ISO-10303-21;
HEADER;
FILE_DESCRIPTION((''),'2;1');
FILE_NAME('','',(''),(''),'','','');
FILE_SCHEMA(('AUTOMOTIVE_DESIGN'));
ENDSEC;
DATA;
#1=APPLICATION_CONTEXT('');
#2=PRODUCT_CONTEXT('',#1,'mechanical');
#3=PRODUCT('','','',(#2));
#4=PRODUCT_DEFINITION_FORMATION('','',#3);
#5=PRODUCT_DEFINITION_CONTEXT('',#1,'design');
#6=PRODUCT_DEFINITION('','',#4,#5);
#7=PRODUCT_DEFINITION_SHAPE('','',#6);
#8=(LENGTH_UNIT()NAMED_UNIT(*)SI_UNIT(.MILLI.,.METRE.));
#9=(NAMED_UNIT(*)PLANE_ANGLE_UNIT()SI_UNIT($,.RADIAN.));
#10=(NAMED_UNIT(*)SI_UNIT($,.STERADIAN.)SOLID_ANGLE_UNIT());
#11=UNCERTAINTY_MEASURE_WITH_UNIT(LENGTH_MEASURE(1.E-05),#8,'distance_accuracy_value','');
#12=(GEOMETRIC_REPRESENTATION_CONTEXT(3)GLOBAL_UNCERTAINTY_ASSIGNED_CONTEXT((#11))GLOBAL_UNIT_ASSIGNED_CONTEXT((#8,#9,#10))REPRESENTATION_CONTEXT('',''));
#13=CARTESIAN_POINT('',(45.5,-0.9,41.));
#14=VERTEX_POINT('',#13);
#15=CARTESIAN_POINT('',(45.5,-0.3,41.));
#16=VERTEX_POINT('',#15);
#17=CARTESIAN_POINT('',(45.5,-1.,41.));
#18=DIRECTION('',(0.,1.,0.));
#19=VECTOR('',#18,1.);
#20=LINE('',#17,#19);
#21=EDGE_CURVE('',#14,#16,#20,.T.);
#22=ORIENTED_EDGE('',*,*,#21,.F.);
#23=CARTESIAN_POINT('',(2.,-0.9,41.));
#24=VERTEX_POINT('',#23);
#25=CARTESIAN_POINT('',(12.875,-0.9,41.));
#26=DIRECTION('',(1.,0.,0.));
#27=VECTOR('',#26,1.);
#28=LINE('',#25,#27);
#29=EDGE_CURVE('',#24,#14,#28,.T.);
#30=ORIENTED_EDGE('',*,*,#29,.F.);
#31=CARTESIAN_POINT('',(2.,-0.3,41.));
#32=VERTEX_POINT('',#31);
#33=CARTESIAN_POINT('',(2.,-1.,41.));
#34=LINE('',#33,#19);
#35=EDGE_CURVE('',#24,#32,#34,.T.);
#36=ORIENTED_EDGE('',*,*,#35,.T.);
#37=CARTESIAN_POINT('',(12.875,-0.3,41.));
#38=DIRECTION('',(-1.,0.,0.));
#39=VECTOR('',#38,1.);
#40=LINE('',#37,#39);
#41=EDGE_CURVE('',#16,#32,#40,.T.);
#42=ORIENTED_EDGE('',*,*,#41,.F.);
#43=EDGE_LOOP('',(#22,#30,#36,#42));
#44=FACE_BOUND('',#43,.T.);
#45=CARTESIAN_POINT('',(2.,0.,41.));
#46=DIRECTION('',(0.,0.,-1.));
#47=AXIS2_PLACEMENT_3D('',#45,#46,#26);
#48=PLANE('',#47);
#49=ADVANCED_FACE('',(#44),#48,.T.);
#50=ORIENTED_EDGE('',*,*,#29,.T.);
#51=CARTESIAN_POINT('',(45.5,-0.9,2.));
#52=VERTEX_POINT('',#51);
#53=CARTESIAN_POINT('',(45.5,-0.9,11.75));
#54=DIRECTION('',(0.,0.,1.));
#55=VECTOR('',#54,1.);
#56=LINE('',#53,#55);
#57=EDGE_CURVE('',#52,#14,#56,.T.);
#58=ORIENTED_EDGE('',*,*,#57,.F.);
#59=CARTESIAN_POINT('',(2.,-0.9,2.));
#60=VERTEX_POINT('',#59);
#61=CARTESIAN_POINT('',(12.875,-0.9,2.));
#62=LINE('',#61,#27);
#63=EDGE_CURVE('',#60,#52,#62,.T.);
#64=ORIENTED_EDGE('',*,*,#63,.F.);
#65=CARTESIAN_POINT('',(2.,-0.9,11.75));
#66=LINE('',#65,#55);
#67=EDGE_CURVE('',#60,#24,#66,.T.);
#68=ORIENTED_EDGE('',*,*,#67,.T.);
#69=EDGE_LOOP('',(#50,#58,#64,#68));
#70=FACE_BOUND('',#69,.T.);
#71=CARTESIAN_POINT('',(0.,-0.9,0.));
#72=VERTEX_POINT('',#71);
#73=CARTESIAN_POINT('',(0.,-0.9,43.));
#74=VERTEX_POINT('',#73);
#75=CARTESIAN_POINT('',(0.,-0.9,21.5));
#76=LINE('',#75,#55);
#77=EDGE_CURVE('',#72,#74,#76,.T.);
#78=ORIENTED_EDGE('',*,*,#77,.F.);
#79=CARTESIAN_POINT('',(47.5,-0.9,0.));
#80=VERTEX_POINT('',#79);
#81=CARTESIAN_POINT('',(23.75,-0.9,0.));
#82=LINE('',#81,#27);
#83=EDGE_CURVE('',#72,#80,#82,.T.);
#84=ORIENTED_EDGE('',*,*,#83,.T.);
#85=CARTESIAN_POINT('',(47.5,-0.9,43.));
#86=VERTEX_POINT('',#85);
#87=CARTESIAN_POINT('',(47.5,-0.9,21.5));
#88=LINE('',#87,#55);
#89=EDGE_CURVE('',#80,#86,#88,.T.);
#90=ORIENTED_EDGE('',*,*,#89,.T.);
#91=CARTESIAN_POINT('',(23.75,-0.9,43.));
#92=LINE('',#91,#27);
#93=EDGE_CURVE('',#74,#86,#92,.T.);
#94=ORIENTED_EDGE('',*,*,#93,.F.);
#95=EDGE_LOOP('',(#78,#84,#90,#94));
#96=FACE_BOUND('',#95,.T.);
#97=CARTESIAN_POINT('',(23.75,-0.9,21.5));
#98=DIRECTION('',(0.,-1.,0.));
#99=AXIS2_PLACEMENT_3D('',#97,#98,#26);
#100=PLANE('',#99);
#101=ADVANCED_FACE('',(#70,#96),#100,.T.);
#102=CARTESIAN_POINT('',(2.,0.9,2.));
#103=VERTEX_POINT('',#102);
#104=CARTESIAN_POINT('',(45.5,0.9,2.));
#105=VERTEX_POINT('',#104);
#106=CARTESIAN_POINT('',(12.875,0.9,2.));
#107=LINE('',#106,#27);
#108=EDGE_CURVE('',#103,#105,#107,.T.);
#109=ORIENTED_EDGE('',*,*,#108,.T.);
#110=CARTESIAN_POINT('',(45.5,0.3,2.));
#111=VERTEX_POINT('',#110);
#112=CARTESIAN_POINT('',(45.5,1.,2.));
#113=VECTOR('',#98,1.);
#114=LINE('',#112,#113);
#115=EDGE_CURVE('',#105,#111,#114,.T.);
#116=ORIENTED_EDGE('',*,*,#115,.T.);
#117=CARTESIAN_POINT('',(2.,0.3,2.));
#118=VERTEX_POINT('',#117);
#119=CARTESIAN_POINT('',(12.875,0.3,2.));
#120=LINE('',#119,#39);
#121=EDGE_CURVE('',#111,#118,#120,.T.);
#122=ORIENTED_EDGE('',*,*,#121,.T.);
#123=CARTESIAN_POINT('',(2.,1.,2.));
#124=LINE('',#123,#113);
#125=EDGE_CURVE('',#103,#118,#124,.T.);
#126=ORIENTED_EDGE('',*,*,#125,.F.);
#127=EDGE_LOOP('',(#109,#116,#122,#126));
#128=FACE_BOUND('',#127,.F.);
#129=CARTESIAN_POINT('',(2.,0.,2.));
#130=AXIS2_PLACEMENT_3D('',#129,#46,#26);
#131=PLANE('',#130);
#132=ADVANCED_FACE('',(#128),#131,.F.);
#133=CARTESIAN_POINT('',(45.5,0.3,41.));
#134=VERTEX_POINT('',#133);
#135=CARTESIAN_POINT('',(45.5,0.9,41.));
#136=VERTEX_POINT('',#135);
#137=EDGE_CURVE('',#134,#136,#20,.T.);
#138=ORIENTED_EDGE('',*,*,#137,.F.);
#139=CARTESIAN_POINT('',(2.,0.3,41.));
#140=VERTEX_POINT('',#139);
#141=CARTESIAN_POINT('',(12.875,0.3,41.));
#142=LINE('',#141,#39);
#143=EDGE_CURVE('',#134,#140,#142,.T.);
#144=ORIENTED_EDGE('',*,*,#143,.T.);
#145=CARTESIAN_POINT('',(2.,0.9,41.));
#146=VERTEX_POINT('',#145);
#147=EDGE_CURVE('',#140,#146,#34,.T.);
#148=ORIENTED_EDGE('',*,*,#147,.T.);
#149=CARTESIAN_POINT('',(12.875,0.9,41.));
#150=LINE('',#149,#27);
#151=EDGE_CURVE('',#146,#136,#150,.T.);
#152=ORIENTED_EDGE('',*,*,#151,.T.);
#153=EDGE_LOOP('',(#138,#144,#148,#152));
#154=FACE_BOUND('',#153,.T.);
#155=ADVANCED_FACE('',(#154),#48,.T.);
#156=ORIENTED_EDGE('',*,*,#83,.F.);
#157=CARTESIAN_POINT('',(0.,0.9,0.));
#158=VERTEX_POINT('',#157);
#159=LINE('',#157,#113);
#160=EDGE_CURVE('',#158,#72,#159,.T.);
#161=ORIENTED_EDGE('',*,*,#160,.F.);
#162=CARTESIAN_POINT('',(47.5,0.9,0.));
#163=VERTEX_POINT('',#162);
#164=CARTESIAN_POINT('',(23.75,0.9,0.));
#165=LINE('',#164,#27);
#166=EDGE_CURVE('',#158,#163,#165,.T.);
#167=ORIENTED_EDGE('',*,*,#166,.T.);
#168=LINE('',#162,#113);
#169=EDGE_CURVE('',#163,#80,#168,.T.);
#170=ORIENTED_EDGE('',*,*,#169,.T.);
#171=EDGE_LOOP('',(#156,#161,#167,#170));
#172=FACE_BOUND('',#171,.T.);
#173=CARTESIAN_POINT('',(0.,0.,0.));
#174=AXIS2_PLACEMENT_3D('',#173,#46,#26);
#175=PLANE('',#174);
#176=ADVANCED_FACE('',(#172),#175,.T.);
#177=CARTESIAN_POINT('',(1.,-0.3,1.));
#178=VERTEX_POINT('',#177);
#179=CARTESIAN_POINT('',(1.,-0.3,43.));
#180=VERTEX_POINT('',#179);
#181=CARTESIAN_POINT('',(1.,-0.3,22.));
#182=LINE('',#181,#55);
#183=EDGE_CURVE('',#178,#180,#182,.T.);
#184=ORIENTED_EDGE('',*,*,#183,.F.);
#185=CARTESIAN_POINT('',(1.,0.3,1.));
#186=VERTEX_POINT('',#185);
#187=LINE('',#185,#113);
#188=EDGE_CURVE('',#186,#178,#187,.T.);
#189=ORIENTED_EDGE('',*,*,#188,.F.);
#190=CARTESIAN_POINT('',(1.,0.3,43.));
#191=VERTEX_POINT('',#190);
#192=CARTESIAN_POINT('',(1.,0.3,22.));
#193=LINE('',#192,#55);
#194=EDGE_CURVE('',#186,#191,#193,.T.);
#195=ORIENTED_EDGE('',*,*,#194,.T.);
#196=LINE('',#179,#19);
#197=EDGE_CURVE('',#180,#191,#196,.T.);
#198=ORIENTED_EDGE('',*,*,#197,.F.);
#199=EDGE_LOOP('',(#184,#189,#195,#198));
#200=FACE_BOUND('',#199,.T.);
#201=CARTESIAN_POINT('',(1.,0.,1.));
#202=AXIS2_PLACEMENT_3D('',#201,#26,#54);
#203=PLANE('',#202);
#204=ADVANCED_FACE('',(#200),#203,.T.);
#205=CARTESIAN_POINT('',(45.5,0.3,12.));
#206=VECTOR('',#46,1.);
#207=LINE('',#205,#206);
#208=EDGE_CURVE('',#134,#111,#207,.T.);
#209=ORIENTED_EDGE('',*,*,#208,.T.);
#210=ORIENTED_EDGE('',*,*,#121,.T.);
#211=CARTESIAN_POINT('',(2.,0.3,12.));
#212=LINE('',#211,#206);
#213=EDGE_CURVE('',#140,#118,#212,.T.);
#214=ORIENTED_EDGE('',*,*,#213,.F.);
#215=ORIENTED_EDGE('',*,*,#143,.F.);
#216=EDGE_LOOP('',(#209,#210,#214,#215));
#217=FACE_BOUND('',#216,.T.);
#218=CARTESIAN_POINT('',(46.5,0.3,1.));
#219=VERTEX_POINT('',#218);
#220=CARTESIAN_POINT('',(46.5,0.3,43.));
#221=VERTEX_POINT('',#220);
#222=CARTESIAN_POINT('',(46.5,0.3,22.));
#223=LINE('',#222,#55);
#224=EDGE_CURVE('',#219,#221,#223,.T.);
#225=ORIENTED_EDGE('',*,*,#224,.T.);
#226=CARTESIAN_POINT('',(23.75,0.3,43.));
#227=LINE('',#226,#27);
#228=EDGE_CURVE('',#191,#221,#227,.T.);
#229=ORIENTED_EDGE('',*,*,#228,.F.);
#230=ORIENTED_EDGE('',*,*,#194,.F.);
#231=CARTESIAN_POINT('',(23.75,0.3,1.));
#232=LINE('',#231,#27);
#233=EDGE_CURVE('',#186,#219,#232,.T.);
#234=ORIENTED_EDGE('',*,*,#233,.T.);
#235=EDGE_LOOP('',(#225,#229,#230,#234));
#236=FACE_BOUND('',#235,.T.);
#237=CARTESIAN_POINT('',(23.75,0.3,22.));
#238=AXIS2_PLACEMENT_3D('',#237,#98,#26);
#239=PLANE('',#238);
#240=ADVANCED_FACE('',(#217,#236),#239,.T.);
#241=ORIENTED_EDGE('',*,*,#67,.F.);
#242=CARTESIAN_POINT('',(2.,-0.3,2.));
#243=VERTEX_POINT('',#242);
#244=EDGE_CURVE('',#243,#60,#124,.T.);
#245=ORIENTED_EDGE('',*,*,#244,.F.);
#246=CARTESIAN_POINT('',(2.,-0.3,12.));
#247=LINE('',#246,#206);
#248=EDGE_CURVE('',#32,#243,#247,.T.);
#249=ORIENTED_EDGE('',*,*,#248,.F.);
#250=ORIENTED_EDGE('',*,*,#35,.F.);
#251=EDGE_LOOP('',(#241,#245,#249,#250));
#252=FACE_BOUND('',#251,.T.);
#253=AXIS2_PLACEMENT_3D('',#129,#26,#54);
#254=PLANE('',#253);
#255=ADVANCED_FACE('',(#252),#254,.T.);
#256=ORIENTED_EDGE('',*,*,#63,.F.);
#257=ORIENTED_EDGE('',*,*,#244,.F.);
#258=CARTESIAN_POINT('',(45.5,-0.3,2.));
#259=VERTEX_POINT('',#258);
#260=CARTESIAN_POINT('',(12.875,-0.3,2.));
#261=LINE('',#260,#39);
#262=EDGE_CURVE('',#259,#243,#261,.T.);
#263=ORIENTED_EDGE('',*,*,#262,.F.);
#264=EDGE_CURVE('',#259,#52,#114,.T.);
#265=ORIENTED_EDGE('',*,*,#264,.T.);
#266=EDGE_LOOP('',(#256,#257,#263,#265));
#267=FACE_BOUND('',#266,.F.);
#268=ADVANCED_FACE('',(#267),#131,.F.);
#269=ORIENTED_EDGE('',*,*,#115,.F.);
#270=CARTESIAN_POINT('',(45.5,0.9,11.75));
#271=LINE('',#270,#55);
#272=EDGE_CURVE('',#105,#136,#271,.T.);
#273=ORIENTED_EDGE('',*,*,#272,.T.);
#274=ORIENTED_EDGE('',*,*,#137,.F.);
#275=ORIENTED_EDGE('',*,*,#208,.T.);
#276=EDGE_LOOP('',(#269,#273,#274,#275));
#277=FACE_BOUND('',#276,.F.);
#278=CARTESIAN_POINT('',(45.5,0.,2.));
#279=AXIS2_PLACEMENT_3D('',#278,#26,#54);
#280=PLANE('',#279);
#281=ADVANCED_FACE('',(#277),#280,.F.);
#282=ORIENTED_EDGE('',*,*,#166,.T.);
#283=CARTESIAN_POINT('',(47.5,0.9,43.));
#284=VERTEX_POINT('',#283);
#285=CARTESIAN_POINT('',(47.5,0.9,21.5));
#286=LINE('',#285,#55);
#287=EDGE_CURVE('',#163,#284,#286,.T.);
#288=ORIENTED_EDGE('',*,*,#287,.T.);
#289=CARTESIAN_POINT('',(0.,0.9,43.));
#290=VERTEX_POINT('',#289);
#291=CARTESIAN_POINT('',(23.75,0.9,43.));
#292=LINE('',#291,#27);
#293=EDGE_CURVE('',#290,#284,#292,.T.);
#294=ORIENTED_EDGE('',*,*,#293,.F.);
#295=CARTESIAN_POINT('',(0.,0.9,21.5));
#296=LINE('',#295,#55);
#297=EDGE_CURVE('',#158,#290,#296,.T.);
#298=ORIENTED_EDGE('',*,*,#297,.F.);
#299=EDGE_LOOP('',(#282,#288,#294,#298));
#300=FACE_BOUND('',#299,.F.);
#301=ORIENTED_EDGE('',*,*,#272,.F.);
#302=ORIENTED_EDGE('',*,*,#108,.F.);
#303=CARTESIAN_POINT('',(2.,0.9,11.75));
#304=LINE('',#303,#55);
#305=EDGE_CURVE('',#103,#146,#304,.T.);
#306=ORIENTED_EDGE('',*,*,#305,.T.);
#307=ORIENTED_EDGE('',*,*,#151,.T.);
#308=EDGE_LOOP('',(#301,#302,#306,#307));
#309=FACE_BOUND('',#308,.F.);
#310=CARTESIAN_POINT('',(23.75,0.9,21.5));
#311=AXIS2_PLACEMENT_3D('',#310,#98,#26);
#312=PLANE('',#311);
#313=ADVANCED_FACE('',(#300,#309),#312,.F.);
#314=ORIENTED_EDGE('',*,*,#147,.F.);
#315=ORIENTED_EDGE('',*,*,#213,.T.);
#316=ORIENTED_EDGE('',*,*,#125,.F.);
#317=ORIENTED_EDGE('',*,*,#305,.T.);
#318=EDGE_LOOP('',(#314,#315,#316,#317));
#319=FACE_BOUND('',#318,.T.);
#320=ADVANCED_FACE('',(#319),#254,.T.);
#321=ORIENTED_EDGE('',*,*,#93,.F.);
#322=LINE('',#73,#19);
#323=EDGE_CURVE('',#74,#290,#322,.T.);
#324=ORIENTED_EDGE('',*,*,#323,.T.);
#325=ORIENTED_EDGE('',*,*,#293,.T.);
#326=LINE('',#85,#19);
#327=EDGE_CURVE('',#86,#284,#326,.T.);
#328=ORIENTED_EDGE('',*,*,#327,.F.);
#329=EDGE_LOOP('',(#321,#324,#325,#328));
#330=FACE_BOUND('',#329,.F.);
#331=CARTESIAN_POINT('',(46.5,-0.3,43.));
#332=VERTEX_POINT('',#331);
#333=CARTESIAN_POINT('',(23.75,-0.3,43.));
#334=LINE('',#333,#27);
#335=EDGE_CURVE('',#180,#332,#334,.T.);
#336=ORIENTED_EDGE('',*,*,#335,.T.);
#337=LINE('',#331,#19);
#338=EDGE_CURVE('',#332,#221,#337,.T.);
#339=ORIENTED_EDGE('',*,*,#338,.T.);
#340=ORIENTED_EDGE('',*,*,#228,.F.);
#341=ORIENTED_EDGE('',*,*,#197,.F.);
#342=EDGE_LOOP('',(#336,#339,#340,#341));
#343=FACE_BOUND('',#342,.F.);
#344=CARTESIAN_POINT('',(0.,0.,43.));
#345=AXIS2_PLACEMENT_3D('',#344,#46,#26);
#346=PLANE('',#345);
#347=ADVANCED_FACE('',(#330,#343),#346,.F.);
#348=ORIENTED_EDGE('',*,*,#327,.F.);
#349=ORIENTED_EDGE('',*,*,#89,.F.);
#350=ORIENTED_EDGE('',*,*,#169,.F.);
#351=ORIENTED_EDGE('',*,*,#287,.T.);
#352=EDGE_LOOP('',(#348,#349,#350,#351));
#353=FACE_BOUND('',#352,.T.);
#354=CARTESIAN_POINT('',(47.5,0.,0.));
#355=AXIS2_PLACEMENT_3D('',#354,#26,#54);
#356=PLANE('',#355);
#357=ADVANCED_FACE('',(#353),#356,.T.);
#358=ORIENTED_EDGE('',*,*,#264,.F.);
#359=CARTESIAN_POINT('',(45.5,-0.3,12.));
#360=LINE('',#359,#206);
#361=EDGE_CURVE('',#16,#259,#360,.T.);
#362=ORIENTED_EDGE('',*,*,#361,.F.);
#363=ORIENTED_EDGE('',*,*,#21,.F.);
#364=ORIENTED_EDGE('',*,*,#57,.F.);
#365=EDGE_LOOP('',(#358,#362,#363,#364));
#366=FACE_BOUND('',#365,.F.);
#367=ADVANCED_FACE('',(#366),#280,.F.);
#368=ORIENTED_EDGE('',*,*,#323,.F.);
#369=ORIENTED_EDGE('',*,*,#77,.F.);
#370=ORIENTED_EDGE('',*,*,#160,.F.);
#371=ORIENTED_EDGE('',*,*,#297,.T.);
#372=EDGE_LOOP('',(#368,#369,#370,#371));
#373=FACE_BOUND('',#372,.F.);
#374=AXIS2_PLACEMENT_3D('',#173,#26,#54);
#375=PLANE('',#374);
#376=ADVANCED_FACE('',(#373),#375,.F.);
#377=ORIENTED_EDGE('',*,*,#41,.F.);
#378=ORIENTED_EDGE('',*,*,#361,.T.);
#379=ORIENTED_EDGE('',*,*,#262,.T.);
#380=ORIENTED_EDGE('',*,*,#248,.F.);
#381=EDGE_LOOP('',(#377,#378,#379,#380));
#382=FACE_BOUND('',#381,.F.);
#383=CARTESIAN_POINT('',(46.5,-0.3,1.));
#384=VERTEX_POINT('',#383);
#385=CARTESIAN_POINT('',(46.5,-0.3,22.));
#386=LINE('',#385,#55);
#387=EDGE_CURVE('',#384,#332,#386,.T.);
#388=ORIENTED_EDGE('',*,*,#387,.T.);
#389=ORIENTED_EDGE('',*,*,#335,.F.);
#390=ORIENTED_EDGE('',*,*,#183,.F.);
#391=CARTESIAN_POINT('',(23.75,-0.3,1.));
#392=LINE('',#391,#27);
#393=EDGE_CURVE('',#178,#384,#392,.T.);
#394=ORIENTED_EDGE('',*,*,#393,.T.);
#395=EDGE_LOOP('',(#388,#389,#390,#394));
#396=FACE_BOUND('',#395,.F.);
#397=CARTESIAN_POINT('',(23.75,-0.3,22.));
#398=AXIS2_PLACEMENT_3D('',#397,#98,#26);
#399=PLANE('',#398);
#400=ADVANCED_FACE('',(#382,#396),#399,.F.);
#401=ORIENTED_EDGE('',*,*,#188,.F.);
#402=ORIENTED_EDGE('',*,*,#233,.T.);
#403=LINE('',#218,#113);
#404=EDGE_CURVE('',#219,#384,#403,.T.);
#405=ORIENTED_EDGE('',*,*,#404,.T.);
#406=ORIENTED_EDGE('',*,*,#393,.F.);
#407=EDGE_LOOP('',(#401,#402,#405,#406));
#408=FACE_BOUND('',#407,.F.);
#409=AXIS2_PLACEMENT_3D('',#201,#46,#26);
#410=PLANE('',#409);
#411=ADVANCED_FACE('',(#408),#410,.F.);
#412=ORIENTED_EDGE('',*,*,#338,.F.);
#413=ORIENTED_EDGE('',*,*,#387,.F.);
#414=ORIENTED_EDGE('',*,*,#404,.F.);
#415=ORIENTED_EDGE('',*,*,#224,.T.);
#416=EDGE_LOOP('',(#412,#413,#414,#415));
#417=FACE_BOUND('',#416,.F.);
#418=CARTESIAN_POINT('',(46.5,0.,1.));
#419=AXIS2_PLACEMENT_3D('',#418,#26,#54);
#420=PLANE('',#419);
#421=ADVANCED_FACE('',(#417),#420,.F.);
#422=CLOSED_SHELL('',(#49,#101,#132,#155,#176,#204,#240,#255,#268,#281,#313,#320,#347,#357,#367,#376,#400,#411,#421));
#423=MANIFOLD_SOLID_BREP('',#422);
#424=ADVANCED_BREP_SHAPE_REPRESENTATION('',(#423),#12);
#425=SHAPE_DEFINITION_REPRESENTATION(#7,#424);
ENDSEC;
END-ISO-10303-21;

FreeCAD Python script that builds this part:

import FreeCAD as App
import Part
import Sketcher
Q = App.Units.Quantity

doc = App.newDocument("Part")
params = doc.addObject("Spreadsheet::Sheet", "Params")
for row, (alias, value) in enumerate([
    ("sketch1_height", "43 mm"),
    ("sketch1_width", "47.5 mm"),
    ("pad1_length", "1.8 mm"),
    ("sketch2_height", "39 mm"),
    ("sketch2_width", "43.5 mm"),
    ("pocket1_length", "2 mm"),
    ("sketch3_height", "42 mm"),
    ("sketch3_width", "45.5 mm"),
    ("pocket2_length", "0.6 mm"),
], start=1):
    params.set(f"A{row}", alias)
    params.set(f"B{row}", "=" + value)
    params.setAlias(f"B{row}", alias)

body = doc.addObject("PartDesign::Body", "Body")

# Sketch on XZ plane
sketch1 = doc.addObject("Sketcher::SketchObject", "Sketch")
body.addObject(sketch1)
sketch1.AttachmentSupport = (doc.XZ_Plane, [""])
sketch1.MapMode = "FlatFace"
sketch1.addGeometry(Part.LineSegment(App.Vector(0, 43, 0), App.Vector(0, 0, 0)), False)
sketch1.addGeometry(Part.LineSegment(App.Vector(0, 0, 0), App.Vector(48, 0, 0)), False)
sketch1.addGeometry(Part.LineSegment(App.Vector(48, 0, 0), App.Vector(48, 43, 0)), False)
sketch1.addGeometry(Part.LineSegment(App.Vector(48, 43, 0), App.Vector(0, 43, 0)), False)
sketch1.addConstraint(Sketcher.Constraint("Coincident", 0, 2, 1, 1))
sketch1.addConstraint(Sketcher.Constraint("Coincident", 1, 2, 2, 1))
sketch1.addConstraint(Sketcher.Constraint("Coincident", 2, 2, 3, 1))
sketch1.addConstraint(Sketcher.Constraint("Coincident", 3, 2, 0, 1))
sketch1.addConstraint(Sketcher.Constraint("Vertical", 0))
sketch1.addConstraint(Sketcher.Constraint("Horizontal", 1))
sketch1.addConstraint(Sketcher.Constraint("Vertical", 2))
sketch1.addConstraint(Sketcher.Constraint("Horizontal", 3))
sketch1.addConstraint(Sketcher.Constraint("Coincident", 0, 2, -1, 1))
sketch1.addConstraint(Sketcher.Constraint("DistanceY", 0, 2, 0, 1, Q("43 mm")))
sketch1.addConstraint(Sketcher.Constraint("DistanceX", 1, 1, 1, 2, Q("47.5 mm")))
sketch1.setExpression("Constraints[9]", "Params.sketch1_height")
sketch1.setExpression("Constraints[10]", "Params.sketch1_width")
pad1 = doc.addObject("PartDesign::Pad", "Pad")
body.addObject(pad1)
pad1.Profile = sketch1
pad1.setExpression("Length", "Params.pad1_length")
pad1.Midplane = True

# Sketch on XZ plane
sketch2 = doc.addObject("Sketcher::SketchObject", "Sketch001")
body.addObject(sketch2)
sketch2.AttachmentSupport = (doc.XZ_Plane, [""])
sketch2.MapMode = "FlatFace"
sketch2.addGeometry(Part.LineSegment(App.Vector(2, 41, 0), App.Vector(2, 2, 0)), False)
sketch2.addGeometry(Part.LineSegment(App.Vector(2, 2, 0), App.Vector(46, 2, 0)), False)
sketch2.addGeometry(Part.LineSegment(App.Vector(46, 2, 0), App.Vector(46, 41, 0)), False)
sketch2.addGeometry(Part.LineSegment(App.Vector(46, 41, 0), App.Vector(2, 41, 0)), False)
sketch2.addConstraint(Sketcher.Constraint("Coincident", 0, 2, 1, 1))
sketch2.addConstraint(Sketcher.Constraint("Coincident", 1, 2, 2, 1))
sketch2.addConstraint(Sketcher.Constraint("Coincident", 2, 2, 3, 1))
sketch2.addConstraint(Sketcher.Constraint("Coincident", 3, 2, 0, 1))
sketch2.addConstraint(Sketcher.Constraint("Vertical", 0))
sketch2.addConstraint(Sketcher.Constraint("Horizontal", 1))
sketch2.addConstraint(Sketcher.Constraint("Vertical", 2))
sketch2.addConstraint(Sketcher.Constraint("Horizontal", 3))
sketch2.addConstraint(Sketcher.Constraint("DistanceY", 0, 2, 0, 1, Q("39 mm")))
sketch2.addConstraint(Sketcher.Constraint("DistanceX", 1, 1, 1, 2, Q("43.5 mm")))
sketch2.addConstraint(Sketcher.Constraint("DistanceX", -1, 1, 0, 2, Q("2 mm")))
sketch2.addConstraint(Sketcher.Constraint("DistanceY", -1, 1, 0, 2, Q("2 mm")))
sketch2.setExpression("Constraints[8]", "Params.sketch2_height")
sketch2.setExpression("Constraints[9]", "Params.sketch2_width")
pocket1 = doc.addObject("PartDesign::Pocket", "Pocket")
body.addObject(pocket1)
pocket1.Profile = sketch2
pocket1.setExpression("Length", "Params.pocket1_length")
pocket1.Midplane = True

# Sketch on XZ plane
sketch3 = doc.addObject("Sketcher::SketchObject", "Sketch002")
body.addObject(sketch3)
sketch3.AttachmentSupport = (doc.XZ_Plane, [""])
sketch3.MapMode = "FlatFace"
sketch3.addGeometry(Part.LineSegment(App.Vector(1, 43, 0), App.Vector(1, 1, 0)), False)
sketch3.addGeometry(Part.LineSegment(App.Vector(1, 1, 0), App.Vector(46, 1, 0)), False)
sketch3.addGeometry(Part.LineSegment(App.Vector(46, 1, 0), App.Vector(46, 43, 0)), False)
sketch3.addGeometry(Part.LineSegment(App.Vector(46, 43, 0), App.Vector(1, 43, 0)), False)
sketch3.addConstraint(Sketcher.Constraint("Coincident", 0, 2, 1, 1))
sketch3.addConstraint(Sketcher.Constraint("Coincident", 1, 2, 2, 1))
sketch3.addConstraint(Sketcher.Constraint("Coincident", 2, 2, 3, 1))
sketch3.addConstraint(Sketcher.Constraint("Coincident", 3, 2, 0, 1))
sketch3.addConstraint(Sketcher.Constraint("Vertical", 0))
sketch3.addConstraint(Sketcher.Constraint("Horizontal", 1))
sketch3.addConstraint(Sketcher.Constraint("Vertical", 2))
sketch3.addConstraint(Sketcher.Constraint("Horizontal", 3))
sketch3.addConstraint(Sketcher.Constraint("DistanceY", 0, 2, 0, 1, Q("42 mm")))
sketch3.addConstraint(Sketcher.Constraint("DistanceX", 1, 1, 1, 2, Q("45.5 mm")))
sketch3.addConstraint(Sketcher.Constraint("DistanceX", -1, 1, 0, 2, Q("1 mm")))
sketch3.addConstraint(Sketcher.Constraint("DistanceY", -1, 1, 0, 2, Q("1 mm")))
sketch3.setExpression("Constraints[8]", "Params.sketch3_height")
sketch3.setExpression("Constraints[9]", "Params.sketch3_width")
pocket2 = doc.addObject("PartDesign::Pocket", "Pocket001")
body.addObject(pocket2)
pocket2.Profile = sketch3
pocket2.setExpression("Length", "Params.pocket2_length")
pocket2.Midplane = True

doc.recompute()
